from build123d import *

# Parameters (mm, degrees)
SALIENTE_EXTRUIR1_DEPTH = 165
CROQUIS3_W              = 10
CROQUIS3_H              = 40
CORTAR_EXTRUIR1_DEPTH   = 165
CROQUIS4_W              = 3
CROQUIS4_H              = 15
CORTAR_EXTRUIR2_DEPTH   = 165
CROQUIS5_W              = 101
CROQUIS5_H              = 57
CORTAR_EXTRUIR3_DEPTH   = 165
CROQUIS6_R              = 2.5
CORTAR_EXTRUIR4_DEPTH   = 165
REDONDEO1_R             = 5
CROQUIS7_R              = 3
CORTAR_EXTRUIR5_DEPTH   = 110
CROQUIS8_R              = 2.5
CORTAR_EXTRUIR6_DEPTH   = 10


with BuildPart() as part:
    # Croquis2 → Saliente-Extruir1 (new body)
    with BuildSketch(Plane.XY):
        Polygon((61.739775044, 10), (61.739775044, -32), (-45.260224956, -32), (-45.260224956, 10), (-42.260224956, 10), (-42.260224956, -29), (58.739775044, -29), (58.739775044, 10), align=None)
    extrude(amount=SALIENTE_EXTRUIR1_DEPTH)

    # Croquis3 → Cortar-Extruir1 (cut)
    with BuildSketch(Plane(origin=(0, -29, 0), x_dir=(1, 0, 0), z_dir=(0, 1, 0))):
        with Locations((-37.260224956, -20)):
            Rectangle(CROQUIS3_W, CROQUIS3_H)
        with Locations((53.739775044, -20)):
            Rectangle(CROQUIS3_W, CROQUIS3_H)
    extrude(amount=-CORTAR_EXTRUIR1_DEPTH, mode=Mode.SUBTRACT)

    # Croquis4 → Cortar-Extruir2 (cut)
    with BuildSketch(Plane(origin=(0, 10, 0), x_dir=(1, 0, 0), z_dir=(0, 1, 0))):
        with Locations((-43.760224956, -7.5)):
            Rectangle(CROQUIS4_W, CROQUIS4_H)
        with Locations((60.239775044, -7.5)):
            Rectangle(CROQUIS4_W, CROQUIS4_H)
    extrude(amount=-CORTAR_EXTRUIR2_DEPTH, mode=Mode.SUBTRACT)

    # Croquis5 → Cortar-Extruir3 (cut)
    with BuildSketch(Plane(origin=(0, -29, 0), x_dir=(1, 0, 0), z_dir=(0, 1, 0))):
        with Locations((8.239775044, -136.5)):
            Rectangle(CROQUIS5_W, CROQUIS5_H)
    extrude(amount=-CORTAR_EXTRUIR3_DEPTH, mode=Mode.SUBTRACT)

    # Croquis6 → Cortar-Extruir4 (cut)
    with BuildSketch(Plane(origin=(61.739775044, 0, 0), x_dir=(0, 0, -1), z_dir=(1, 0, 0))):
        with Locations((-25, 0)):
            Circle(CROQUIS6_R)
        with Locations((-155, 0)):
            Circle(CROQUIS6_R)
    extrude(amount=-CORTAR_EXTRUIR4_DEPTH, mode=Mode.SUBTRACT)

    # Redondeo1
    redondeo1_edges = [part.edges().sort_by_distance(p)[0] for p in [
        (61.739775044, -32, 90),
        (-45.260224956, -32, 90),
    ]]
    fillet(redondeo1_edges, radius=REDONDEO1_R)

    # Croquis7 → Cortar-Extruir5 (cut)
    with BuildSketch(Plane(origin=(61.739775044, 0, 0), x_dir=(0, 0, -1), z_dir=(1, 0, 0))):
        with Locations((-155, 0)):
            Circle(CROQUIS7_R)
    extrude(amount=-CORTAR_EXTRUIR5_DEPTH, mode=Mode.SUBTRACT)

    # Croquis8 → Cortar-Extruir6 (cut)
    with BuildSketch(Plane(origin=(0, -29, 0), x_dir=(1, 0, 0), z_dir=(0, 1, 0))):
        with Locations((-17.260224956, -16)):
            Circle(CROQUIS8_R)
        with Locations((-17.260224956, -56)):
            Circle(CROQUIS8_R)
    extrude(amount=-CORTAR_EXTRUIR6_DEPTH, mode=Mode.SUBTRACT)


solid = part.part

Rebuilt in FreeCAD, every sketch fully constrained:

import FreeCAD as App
import Part
import Sketcher

V = App.Vector
Q = App.Units.Quantity


def edges_at(feature, points):
    """Names of the edges that pass closest to the given points."""
    edges = feature.Shape.Edges
    near = lambda p: min(range(len(edges)), key=lambda i: edges[i].distToShape(Part.Vertex(*p))[0])
    return sorted({f"Edge{near(p) + 1}" for p in points})

doc = App.newDocument("Part")
body = doc.addObject("PartDesign::Body", "Body")

# Sketch on XY plane
sketch1 = body.newObject("Sketcher::SketchObject", "Sketch")
sketch1.AttachmentSupport = (doc.getObject("XY_Plane"), [""])
sketch1.MapMode = "FlatFace"
sketch1.addGeometry([
    Part.LineSegment(V(61.7, -32, 0), V(61.7, 10, 0)),  # 0
    Part.LineSegment(V(61.7, 10, 0), V(58.7, 10, 0)),  # 1
    Part.LineSegment(V(58.7, 10, 0), V(58.7, -29, 0)),  # 2
    Part.LineSegment(V(58.7, -29, 0), V(-42.3, -29, 0)),  # 3
    Part.LineSegment(V(-42.3, -29, 0), V(-42.3, 10, 0)),  # 4
    Part.LineSegment(V(-42.3, 10, 0), V(-45.3, 10, 0)),  # 5
    Part.LineSegment(V(-45.3, 10, 0), V(-45.3, -32, 0)),  # 6
    Part.LineSegment(V(-45.3, -32, 0), V(61.7, -32, 0)),  # 7
], False)
sketch1.addConstraint([
    Sketcher.Constraint("Coincident", 0, 2, 1, 1),
    Sketcher.Constraint("Coincident", 1, 2, 2, 1),
    Sketcher.Constraint("Coincident", 2, 2, 3, 1),
    Sketcher.Constraint("Coincident", 3, 2, 4, 1),
    Sketcher.Constraint("Coincident", 4, 2, 5, 1),
    Sketcher.Constraint("Coincident", 5, 2, 6, 1),
    Sketcher.Constraint("Coincident", 6, 2, 7, 1),
    Sketcher.Constraint("Coincident", 7, 2, 0, 1),
    Sketcher.Constraint("Vertical", 0),
    Sketcher.Constraint("Horizontal", 1),
    Sketcher.Constraint("Vertical", 2),
    Sketcher.Constraint("Horizontal", 3),
    Sketcher.Constraint("Vertical", 4),
    Sketcher.Constraint("Horizontal", 5),
    Sketcher.Constraint("Vertical", 6),
    Sketcher.Constraint("Horizontal", 7),
    Sketcher.Constraint("Horizontal", 1, 2, 4, 2),
    Sketcher.Constraint("Equal", 1, 5),
    Sketcher.Constraint("DistanceX", 1, 2, 1, 1, Q("3 mm")),
    Sketcher.Constraint("DistanceX", 3, 2, 3, 1, Q("101 mm")),
    Sketcher.Constraint("DistanceY", 0, 1, 0, 2, Q("42 mm")),
    Sketcher.Constraint("DistanceY", 2, 2, 2, 1, Q("39 mm")),
    Sketcher.Constraint("DistanceY", -1, 1, 0, 2, Q("10 mm")),
    Sketcher.Constraint("DistanceX", -1, 1, 0, 2, Q("61.739775 mm")),
])
pad1 = body.newObject("PartDesign::Pad", "Pad")
pad1.Profile = sketch1
pad1.Length = 165

# Sketch on XZ plane
sketch2 = body.newObject("Sketcher::SketchObject", "Sketch001")
sketch2.AttachmentSupport = (doc.getObject("XZ_Plane"), [""])
sketch2.MapMode = "FlatFace"
sketch2.AttachmentOffset = App.Placement(V(0, 0, 29), App.Rotation())
sketch2.addGeometry([
    Part.LineSegment(V(-42, 0, 0), V(-42, 40, 0)),  # 0
    Part.LineSegment(V(-42, 40, 0), V(-32, 40, 0)),  # 1
    Part.LineSegment(V(-32, 40, 0), V(-32, 0, 0)),  # 2
    Part.LineSegment(V(-32, 0, 0), V(-42, 0, 0)),  # 3
    Part.LineSegment(V(49, 0, 0), V(49, 40, 0)),  # 4
    Part.LineSegment(V(49, 40, 0), V(59, 40, 0)),  # 5
    Part.LineSegment(V(59, 40, 0), V(59, 0, 0)),  # 6
    Part.LineSegment(V(59, 0, 0), V(49, 0, 0)),  # 7
], False)
sketch2.addConstraint([
    Sketcher.Constraint("Coincident", 0, 2, 1, 1),
    Sketcher.Constraint("Coincident", 1, 2, 2, 1),
    Sketcher.Constraint("Coincident", 2, 2, 3, 1),
    Sketcher.Constraint("Coincident", 3, 2, 0, 1),
    Sketcher.Constraint("Coincident", 4, 2, 5, 1),
    Sketcher.Constraint("Coincident", 5, 2, 6, 1),
    Sketcher.Constraint("Coincident", 6, 2, 7, 1),
    Sketcher.Constraint("Coincident", 7, 2, 4, 1),
    Sketcher.Constraint("Vertical", 0),
    Sketcher.Constraint("Horizontal", 1),
    Sketcher.Constraint("Vertical", 2),
    Sketcher.Constraint("Horizontal", 3),
    Sketcher.Constraint("Vertical", 4),
    Sketcher.Constraint("Horizontal", 5),
    Sketcher.Constraint("Vertical", 6),
    Sketcher.Constraint("Horizontal", 7),
    Sketcher.Constraint("PointOnObject", 2, 2, -1),
    Sketcher.Constraint("PointOnObject", 6, 2, -1),
    Sketcher.Constraint("Horizontal", 1, 2, 4, 2),
    Sketcher.Constraint("Equal", 3, 5),
    Sketcher.Constraint("DistanceX", 1, 1, 1, 2, Q("10 mm")),
    Sketcher.Constraint("DistanceY", 0, 1, 0, 2, Q("40 mm")),
    Sketcher.Constraint("DistanceX", 1, 2, 4, 2, Q("81 mm")),
    Sketcher.Constraint("DistanceX", 0, 2, -1, 1, Q("42.260225 mm")),
])
pocket1 = body.newObject("PartDesign::Pocket", "Pocket")
pocket1.Profile = sketch2
pocket1.Length = 165
pocket1.Reversed = True

# Sketch on XZ plane
sketch3 = body.newObject("Sketcher::SketchObject", "Sketch002")
sketch3.AttachmentSupport = (doc.getObject("XZ_Plane"), [""])
sketch3.MapMode = "FlatFace"
sketch3.AttachmentOffset = App.Placement(V(0, 0, -10), App.Rotation())
sketch3.addGeometry([
    Part.LineSegment(V(-45.3, 0, 0), V(-45.3, 15, 0)),  # 0
    Part.LineSegment(V(-45.3, 15, 0), V(-42.3, 15, 0)),  # 1
    Part.LineSegment(V(-42.3, 15, 0), V(-42.3, 0, 0)),  # 2
    Part.LineSegment(V(-42.3, 0, 0), V(-45.3, 0, 0)),  # 3
    Part.LineSegment(V(58.7, 0, 0), V(58.7, 15, 0)),  # 4
    Part.LineSegment(V(58.7, 15, 0), V(61.7, 15, 0)),  # 5
    Part.LineSegment(V(61.7, 15, 0), V(61.7, 0, 0)),  # 6
    Part.LineSegment(V(61.7, 0, 0), V(58.7, 0, 0)),  # 7
], False)
sketch3.addConstraint([
    Sketcher.Constraint("Coincident", 0, 2, 1, 1),
    Sketcher.Constraint("Coincident", 1, 2, 2, 1),
    Sketcher.Constraint("Coincident", 2, 2, 3, 1),
    Sketcher.Constraint("Coincident", 3, 2, 0, 1),
    Sketcher.Constraint("Coincident", 4, 2, 5, 1),
    Sketcher.Constraint("Coincident", 5, 2, 6, 1),
    Sketcher.Constraint("Coincident", 6, 2, 7, 1),
    Sketcher.Constraint("Coincident", 7, 2, 4, 1),
    Sketcher.Constraint("Vertical", 0),
    Sketcher.Constraint("Horizontal", 1),
    Sketcher.Constraint("Vertical", 2),
    Sketcher.Constraint("Horizontal", 3),
    Sketcher.Constraint("Vertical", 4),
    Sketcher.Constraint("Horizontal", 5),
    Sketcher.Constraint("Vertical", 6),
    Sketcher.Constraint("Horizontal", 7),
    Sketcher.Constraint("PointOnObject", 2, 2, -1),
    Sketcher.Constraint("PointOnObject", 6, 2, -1),
    Sketcher.Constraint("Horizontal", 1, 2, 4, 2),
    Sketcher.Constraint("Equal", 3, 5),
    Sketcher.Constraint("DistanceX", 1, 1, 1, 2, Q("3 mm")),
    Sketcher.Constraint("DistanceY", 0, 1, 0, 2, Q("15 mm")),
    Sketcher.Constraint("DistanceX", 1, 2, 4, 2, Q("101 mm")),
    Sketcher.Constraint("DistanceX", 0, 2, -1, 1, Q("45.260225 mm")),
])
pocket2 = body.newObject("PartDesign::Pocket", "Pocket001")
pocket2.Profile = sketch3
pocket2.Length = 165
pocket2.Reversed = True

# Sketch on XZ plane
sketch4 = body.newObject("Sketcher::SketchObject", "Sketch003")
sketch4.AttachmentSupport = (doc.getObject("XZ_Plane"), [""])
sketch4.MapMode = "FlatFace"
sketch4.AttachmentOffset = App.Placement(V(0, 0, 29), App.Rotation())
sketch4.addGeometry([
    Part.LineSegment(V(-42, 108, 0), V(-42, 165, 0)),
    Part.LineSegment(V(-42, 165, 0), V(59, 165, 0)),
    Part.LineSegment(V(59, 165, 0), V(59, 108, 0)),
    Part.LineSegment(V(59, 108, 0), V(-42, 108, 0)),
], False)
sketch4.addConstraint([
    Sketcher.Constraint("Coincident", 0, 2, 1, 1),
    Sketcher.Constraint("Coincident", 1, 2, 2, 1),
    Sketcher.Constraint("Coincident", 2, 2, 3, 1),
    Sketcher.Constraint("Coincident", 3, 2, 0, 1),
    Sketcher.Constraint("Vertical", 0),
    Sketcher.Constraint("Horizontal", 1),
    Sketcher.Constraint("Vertical", 2),
    Sketcher.Constraint("Horizontal", 3),
    Sketcher.Constraint("DistanceX", 1, 1, 1, 2, Q("101 mm")),
    Sketcher.Constraint("DistanceY", 0, 1, 0, 2, Q("57 mm")),
    Sketcher.Constraint("DistanceY", -1, 1, 0, 2, Q("165 mm")),
    Sketcher.Constraint("DistanceX", 0, 2, -1, 1, Q("42.260225 mm")),
])
pocket3 = body.newObject("PartDesign::Pocket", "Pocket002")
pocket3.Profile = sketch4
pocket3.Length = 165
pocket3.Reversed = True

# Sketch on YZ plane
sketch5 = body.newObject("Sketcher::SketchObject", "Sketch004")
sketch5.AttachmentSupport = (doc.getObject("YZ_Plane"), [""])
sketch5.MapMode = "FlatFace"
sketch5.AttachmentOffset = App.Placement(V(0, 0, 61.739775), App.Rotation())
sketch5.addGeometry([
    Part.Circle(V(0, 25, 0), V(0, 0, 1), 2.5),
    Part.Circle(V(0, 155, 0), V(0, 0, 1), 2.5),
], False)
sketch5.addConstraint([
    Sketcher.Constraint("Equal", 0, 1),
    Sketcher.Constraint("PointOnObject", 0, 3, -2),
    Sketcher.Constraint("PointOnObject", 1, 3, -2),
    Sketcher.Constraint("Diameter", 0, Q("5 mm")),
    Sketcher.Constraint("DistanceY", -1, 1, 0, 3, Q("25 mm")),
    Sketcher.Constraint("DistanceY", -1, 1, 1, 3, Q("155 mm")),
])
pocket4 = body.newObject("PartDesign::Pocket", "Pocket003")
pocket4.Profile = sketch5
pocket4.Length = 165
doc.recompute()

fillet = body.newObject("PartDesign::Fillet", "Fillet")
fillet.Base = (pocket4, edges_at(pocket4, [(61.74, -32, 90), (-45.26, -32, 90)]))
fillet.Radius = 5

# Sketch on YZ plane
sketch6 = body.newObject("Sketcher::SketchObject", "Sketch005")
sketch6.AttachmentSupport = (doc.getObject("YZ_Plane"), [""])
sketch6.MapMode = "FlatFace"
sketch6.AttachmentOffset = App.Placement(V(0, 0, 61.739775), App.Rotation())
sketch6.addGeometry(Part.Circle(V(0, 155, 0), V(0, 0, 1), 3), False)
sketch6.addConstraint([
    Sketcher.Constraint("PointOnObject", 0, 3, -2),
    Sketcher.Constraint("Diameter", 0, Q("6 mm")),
    Sketcher.Constraint("DistanceY", -1, 1, 0, 3, Q("155 mm")),
])
pocket5 = body.newObject("PartDesign::Pocket", "Pocket004")
pocket5.Profile = sketch6
pocket5.Length = 110

# Sketch on XZ plane
sketch7 = body.newObject("Sketcher::SketchObject", "Sketch006")
sketch7.AttachmentSupport = (doc.getObject("XZ_Plane"), [""])
sketch7.MapMode = "FlatFace"
sketch7.AttachmentOffset = App.Placement(V(0, 0, 29), App.Rotation())
sketch7.addGeometry([
    Part.Circle(V(-17.3, 16, 0), V(0, 0, 1), 2.5),
    Part.Circle(V(-17.3, 56, 0), V(0, 0, 1), 2.5),
], False)
sketch7.addConstraint([
    Sketcher.Constraint("Equal", 0, 1),
    Sketcher.Constraint("Vertical", 0, 3, 1, 3),
    Sketcher.Constraint("Diameter", 0, Q("5 mm")),
    Sketcher.Constraint("DistanceY", -1, 1, 0, 3, Q("16 mm")),
    Sketcher.Constraint("DistanceY", -1, 1, 1, 3, Q("56 mm")),
    Sketcher.Constraint("DistanceX", 0, 3, -1, 1, Q("17.260225 mm")),
])
pocket6 = body.newObject("PartDesign::Pocket", "Pocket005")
pocket6.Profile = sketch7
pocket6.Length = 10
pocket6.Reversed = True

doc.recompute()
